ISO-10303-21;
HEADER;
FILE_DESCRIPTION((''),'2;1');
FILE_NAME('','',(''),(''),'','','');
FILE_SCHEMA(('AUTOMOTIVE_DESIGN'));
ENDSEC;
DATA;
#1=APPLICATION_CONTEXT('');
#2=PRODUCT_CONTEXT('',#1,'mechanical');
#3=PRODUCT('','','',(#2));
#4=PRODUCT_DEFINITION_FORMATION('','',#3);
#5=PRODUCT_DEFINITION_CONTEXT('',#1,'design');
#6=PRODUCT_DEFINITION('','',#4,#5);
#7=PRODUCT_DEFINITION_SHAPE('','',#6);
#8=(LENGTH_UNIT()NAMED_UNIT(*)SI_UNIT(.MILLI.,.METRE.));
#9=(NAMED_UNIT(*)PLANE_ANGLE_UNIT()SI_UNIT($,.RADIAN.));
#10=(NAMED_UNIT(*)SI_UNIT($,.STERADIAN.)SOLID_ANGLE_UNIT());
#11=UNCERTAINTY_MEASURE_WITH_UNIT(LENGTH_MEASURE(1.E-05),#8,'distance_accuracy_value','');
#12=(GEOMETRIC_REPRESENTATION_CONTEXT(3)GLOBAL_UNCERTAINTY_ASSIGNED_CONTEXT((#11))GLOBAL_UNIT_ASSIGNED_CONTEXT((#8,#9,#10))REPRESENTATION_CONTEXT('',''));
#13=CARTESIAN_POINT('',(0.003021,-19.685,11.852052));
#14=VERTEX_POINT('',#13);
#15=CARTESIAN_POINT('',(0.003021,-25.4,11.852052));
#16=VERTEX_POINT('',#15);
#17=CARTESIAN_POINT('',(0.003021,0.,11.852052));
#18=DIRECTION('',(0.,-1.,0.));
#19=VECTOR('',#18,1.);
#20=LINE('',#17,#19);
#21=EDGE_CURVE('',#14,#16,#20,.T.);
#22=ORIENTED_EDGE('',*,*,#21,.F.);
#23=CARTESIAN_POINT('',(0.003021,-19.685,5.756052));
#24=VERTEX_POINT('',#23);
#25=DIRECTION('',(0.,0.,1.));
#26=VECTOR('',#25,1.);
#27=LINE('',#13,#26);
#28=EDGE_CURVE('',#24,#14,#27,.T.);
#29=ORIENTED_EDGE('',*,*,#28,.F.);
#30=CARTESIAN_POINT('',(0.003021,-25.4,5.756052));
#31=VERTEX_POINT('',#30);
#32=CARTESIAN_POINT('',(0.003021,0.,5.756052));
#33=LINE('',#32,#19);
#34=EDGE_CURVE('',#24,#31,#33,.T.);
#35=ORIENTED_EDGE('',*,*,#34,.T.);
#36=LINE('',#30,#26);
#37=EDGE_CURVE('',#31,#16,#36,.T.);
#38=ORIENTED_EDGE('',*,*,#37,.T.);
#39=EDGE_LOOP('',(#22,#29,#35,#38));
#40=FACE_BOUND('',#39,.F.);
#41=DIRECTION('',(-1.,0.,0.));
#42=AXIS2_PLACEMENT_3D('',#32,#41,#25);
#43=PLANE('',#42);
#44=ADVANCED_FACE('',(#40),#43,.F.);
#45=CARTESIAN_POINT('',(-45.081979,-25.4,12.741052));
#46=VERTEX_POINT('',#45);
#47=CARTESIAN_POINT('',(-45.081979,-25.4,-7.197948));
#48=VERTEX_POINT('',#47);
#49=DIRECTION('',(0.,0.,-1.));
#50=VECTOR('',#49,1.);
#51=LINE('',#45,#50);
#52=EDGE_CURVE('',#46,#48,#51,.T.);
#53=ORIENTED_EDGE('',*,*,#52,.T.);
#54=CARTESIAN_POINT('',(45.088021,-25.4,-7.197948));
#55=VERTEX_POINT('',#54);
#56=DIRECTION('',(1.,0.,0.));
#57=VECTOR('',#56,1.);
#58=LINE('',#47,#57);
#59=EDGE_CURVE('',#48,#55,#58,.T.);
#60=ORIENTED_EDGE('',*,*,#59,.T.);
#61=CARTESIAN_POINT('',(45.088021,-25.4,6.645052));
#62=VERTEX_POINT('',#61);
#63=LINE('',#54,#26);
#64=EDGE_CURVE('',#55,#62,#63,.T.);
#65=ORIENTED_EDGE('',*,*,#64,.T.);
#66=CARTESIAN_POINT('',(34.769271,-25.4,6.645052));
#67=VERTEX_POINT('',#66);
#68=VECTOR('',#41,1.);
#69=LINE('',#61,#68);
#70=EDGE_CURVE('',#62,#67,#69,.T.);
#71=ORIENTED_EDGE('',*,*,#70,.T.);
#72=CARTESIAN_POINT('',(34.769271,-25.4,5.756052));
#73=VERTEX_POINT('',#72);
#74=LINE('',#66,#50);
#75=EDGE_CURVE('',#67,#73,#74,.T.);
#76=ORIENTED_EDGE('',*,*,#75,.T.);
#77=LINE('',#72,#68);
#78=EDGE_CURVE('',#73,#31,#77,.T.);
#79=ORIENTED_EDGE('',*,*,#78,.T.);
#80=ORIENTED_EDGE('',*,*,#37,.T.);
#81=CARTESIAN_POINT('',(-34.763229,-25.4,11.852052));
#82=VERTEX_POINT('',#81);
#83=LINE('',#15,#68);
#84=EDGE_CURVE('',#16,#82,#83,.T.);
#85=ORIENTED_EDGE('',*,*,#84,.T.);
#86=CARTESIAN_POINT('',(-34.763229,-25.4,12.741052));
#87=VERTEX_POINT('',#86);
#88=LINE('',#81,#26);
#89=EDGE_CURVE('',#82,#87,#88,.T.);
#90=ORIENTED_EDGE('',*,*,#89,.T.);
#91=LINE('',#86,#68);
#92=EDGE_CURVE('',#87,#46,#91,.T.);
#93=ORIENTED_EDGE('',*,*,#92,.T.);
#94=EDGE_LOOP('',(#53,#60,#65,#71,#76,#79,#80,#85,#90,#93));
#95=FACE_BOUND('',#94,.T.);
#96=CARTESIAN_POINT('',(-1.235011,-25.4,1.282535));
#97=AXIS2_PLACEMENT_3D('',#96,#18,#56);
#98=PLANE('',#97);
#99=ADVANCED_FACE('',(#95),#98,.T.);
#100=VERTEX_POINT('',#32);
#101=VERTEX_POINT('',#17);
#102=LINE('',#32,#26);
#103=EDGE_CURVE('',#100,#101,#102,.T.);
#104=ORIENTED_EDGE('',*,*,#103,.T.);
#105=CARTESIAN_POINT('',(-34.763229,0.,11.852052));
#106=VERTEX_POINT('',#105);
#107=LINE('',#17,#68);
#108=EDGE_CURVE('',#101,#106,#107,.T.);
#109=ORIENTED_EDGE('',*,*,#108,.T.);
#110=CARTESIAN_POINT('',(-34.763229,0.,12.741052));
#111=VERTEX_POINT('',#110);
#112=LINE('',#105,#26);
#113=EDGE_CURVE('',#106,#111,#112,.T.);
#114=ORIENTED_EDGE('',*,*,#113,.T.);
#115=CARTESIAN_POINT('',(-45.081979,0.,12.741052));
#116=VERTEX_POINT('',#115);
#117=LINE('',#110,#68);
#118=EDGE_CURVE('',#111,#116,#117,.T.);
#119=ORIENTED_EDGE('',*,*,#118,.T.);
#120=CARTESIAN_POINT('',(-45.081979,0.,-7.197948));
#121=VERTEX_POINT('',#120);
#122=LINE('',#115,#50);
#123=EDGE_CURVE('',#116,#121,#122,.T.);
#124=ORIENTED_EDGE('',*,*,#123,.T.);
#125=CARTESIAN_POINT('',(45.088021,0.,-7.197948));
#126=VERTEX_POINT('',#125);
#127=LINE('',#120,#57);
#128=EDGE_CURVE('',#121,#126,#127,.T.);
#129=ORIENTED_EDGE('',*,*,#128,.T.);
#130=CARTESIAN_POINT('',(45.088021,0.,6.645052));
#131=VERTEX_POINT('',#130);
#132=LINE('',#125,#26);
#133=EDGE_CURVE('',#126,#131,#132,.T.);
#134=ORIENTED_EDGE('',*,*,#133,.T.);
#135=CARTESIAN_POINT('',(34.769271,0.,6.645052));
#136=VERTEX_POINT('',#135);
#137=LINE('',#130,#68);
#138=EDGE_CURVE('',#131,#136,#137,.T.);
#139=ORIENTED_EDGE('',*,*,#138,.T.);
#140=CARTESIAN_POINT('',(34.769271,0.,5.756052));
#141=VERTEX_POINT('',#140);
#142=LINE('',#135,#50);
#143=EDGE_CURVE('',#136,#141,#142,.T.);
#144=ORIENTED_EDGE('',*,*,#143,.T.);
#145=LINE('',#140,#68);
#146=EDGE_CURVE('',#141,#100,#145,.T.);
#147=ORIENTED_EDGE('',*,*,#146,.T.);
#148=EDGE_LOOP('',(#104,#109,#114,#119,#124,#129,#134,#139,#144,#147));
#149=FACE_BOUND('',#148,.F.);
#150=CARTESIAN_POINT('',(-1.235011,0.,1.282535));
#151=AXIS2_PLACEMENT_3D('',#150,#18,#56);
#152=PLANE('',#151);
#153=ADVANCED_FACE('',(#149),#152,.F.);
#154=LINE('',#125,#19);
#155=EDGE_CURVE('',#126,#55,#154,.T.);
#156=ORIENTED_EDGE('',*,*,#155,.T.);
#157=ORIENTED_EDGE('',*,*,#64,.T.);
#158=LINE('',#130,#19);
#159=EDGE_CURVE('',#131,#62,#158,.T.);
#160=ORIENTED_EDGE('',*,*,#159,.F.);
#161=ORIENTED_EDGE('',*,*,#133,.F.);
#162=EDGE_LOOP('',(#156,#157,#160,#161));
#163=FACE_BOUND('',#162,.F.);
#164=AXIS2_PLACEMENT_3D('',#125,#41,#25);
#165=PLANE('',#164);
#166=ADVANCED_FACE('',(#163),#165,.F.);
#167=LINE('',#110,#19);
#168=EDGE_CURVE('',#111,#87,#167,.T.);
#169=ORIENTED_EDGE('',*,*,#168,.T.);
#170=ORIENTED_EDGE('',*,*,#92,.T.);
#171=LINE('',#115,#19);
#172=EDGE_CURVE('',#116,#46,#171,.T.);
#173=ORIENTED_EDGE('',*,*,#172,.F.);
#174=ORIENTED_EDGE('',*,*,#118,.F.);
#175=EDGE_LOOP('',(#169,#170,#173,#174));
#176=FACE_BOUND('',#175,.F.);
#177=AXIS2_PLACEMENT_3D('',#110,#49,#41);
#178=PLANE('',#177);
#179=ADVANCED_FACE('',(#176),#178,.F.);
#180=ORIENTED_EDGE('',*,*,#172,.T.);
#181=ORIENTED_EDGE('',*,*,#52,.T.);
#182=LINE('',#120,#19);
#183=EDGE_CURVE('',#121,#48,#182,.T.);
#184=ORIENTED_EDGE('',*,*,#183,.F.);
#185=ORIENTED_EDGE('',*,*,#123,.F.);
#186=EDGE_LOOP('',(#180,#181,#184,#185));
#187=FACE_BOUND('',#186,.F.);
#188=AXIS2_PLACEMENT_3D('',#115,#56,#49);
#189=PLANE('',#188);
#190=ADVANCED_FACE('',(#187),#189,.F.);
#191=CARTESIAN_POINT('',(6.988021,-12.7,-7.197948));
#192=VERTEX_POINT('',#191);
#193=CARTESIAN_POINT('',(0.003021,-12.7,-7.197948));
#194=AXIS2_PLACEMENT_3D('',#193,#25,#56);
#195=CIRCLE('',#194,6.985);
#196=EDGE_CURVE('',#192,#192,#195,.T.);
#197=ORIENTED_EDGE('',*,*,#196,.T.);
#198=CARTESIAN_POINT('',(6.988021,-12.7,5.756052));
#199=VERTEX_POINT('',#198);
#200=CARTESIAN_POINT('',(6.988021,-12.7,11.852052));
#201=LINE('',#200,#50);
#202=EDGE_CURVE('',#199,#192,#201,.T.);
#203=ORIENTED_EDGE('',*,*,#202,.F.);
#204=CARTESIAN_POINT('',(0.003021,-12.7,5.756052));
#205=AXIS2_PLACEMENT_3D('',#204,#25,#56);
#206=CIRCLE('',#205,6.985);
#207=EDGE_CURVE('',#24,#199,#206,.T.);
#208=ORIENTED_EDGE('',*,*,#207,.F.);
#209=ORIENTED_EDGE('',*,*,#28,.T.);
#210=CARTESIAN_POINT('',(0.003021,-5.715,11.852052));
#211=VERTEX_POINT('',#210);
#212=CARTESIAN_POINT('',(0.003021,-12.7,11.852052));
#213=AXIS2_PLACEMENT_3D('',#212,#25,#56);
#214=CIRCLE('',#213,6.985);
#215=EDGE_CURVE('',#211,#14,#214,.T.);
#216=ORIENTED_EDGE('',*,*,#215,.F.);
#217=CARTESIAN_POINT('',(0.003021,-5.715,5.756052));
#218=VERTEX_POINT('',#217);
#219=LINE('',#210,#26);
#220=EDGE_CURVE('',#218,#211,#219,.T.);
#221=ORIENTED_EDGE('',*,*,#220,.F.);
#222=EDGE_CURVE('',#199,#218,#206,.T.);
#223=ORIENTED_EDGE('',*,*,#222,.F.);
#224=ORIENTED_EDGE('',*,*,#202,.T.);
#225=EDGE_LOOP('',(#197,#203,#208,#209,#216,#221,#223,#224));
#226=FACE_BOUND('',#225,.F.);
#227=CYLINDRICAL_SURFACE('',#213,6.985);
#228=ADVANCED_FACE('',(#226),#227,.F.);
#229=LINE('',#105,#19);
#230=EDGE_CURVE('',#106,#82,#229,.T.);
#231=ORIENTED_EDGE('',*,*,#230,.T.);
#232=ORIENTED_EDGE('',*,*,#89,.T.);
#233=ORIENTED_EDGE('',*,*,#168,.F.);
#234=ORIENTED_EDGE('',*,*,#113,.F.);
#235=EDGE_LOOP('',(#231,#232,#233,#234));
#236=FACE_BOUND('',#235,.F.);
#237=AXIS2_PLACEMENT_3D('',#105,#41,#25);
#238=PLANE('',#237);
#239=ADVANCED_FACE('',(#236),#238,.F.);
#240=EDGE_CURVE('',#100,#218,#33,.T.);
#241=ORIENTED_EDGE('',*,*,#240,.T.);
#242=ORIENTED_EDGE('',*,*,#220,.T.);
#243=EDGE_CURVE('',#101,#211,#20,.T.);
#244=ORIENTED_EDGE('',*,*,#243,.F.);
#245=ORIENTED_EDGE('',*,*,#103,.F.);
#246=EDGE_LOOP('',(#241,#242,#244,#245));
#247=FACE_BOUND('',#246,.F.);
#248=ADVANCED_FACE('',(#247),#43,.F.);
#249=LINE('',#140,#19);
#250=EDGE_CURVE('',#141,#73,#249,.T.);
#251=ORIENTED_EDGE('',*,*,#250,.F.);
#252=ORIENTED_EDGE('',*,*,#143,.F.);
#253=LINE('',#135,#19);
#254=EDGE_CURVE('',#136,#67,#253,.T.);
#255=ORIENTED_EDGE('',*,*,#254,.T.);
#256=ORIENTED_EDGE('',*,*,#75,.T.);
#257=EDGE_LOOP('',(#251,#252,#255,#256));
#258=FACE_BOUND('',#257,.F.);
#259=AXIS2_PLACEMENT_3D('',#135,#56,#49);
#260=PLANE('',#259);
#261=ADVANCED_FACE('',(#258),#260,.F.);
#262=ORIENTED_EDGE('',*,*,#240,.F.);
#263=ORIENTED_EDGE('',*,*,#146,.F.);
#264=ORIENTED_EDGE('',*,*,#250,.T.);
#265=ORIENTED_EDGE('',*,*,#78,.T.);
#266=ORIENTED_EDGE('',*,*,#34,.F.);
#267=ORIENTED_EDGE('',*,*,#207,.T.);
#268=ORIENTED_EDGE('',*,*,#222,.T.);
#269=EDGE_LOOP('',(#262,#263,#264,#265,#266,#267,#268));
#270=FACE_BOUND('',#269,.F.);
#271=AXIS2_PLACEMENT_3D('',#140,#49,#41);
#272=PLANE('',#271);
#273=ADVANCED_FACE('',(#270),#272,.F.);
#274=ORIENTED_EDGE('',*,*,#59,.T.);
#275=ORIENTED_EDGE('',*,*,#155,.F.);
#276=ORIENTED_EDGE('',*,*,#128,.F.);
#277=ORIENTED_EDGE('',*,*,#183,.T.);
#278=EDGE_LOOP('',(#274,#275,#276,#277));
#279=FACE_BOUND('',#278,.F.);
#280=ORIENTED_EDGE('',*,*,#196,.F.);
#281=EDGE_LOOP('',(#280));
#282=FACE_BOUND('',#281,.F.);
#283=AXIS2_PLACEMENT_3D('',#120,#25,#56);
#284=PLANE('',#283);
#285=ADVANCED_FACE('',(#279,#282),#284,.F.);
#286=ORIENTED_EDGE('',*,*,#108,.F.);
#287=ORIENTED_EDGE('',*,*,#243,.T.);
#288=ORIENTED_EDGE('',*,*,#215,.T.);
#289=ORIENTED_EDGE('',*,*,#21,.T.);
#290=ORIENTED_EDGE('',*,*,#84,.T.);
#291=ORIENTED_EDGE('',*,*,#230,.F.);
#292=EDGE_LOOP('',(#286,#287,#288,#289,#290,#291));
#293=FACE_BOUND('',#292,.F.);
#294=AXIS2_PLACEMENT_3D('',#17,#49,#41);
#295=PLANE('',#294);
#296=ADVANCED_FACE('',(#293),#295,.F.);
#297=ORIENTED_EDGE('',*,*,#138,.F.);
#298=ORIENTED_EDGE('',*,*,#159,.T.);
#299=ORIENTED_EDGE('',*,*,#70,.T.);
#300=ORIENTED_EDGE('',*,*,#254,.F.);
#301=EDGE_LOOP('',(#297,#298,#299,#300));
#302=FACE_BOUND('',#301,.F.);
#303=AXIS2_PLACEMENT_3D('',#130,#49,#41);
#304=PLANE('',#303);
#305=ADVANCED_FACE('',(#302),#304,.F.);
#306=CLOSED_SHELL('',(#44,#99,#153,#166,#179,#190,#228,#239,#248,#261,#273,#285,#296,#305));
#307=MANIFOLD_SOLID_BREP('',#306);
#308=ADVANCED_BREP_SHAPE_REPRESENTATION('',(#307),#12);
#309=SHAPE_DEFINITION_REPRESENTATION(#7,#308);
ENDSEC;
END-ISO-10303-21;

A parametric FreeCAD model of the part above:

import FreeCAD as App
import Part
import Sketcher
Q = App.Units.Quantity

doc = App.newDocument("Part")
body = doc.addObject("PartDesign::Body", "Body")

# Sketch on XZ plane
sketch1 = doc.addObject("Sketcher::SketchObject", "Sketch")
body.addObject(sketch1)
sketch1.AttachmentSupport = (doc.XZ_Plane, [""])
sketch1.MapMode = "FlatFace"
sketch1.addGeometry(Part.LineSegment(App.Vector(-34.8, 12.7, 0), App.Vector(-45.1, 12.7, 0)), False)
sketch1.addGeometry(Part.LineSegment(App.Vector(-45.1, 12.7, 0), App.Vector(-45.1, -7.2, 0)), False)
sketch1.addGeometry(Part.LineSegment(App.Vector(-45.1, -7.2, 0), App.Vector(45.1, -7.2, 0)), False)
sketch1.addGeometry(Part.LineSegment(App.Vector(45.1, -7.2, 0), App.Vector(45.1, 6.6, 0)), False)
sketch1.addGeometry(Part.LineSegment(App.Vector(45.1, 6.6, 0), App.Vector(34.8, 6.6, 0)), False)
sketch1.addGeometry(Part.LineSegment(App.Vector(34.8, 6.6, 0), App.Vector(34.8, 5.8, 0)), False)
sketch1.addGeometry(Part.LineSegment(App.Vector(34.8, 5.8, 0), App.Vector(0, 5.8, 0)), False)
sketch1.addGeometry(Part.LineSegment(App.Vector(0, 5.8, 0), App.Vector(0, 11.9, 0)), False)
sketch1.addGeometry(Part.LineSegment(App.Vector(0, 11.9, 0), App.Vector(-34.8, 11.9, 0)), False)
sketch1.addGeometry(Part.LineSegment(App.Vector(-34.8, 11.9, 0), App.Vector(-34.8, 12.7, 0)), False)
sketch1.addConstraint(Sketcher.Constraint("Coincident", 0, 2, 1, 1))
sketch1.addConstraint(Sketcher.Constraint("Coincident", 1, 2, 2, 1))
sketch1.addConstraint(Sketcher.Constraint("Coincident", 2, 2, 3, 1))
sketch1.addConstraint(Sketcher.Constraint("Coincident", 3, 2, 4, 1))
sketch1.addConstraint(Sketcher.Constraint("Coincident", 4, 2, 5, 1))
sketch1.addConstraint(Sketcher.Constraint("Coincident", 5, 2, 6, 1))
sketch1.addConstraint(Sketcher.Constraint("Coincident", 6, 2, 7, 1))
sketch1.addConstraint(Sketcher.Constraint("Coincident", 7, 2, 8, 1))
sketch1.addConstraint(Sketcher.Constraint("Coincident", 8, 2, 9, 1))
sketch1.addConstraint(Sketcher.Constraint("Coincident", 9, 2, 0, 1))
sketch1.addConstraint(Sketcher.Constraint("Horizontal", 0))
sketch1.addConstraint(Sketcher.Constraint("Vertical", 1))
sketch1.addConstraint(Sketcher.Constraint("Horizontal", 2))
sketch1.addConstraint(Sketcher.Constraint("Vertical", 3))
sketch1.addConstraint(Sketcher.Constraint("Horizontal", 4))
sketch1.addConstraint(Sketcher.Constraint("Vertical", 5))
sketch1.addConstraint(Sketcher.Constraint("Horizontal", 6))
sketch1.addConstraint(Sketcher.Constraint("Vertical", 7))
sketch1.addConstraint(Sketcher.Constraint("Horizontal", 8))
sketch1.addConstraint(Sketcher.Constraint("Vertical", 9))
sketch1.addConstraint(Sketcher.Constraint("Equal", 0, 4))
sketch1.addConstraint(Sketcher.Constraint("Equal", 6, 8))
sketch1.addConstraint(Sketcher.Constraint("Equal", 5, 9))
sketch1.addConstraint(Sketcher.Constraint("DistanceX", 2, 1, 2, 2, Q("3.55 in")))
sketch1.addConstraint(Sketcher.Constraint("DistanceY", 7, 1, 7, 2, Q("0.24 in")))
sketch1.addConstraint(Sketcher.Constraint("DistanceX", 0, 2, 0, 1, Q("0.40625 in")))
sketch1.addConstraint(Sketcher.Constraint("DistanceY", 1, 2, 1, 1, Q("0.785 in")))
sketch1.addConstraint(Sketcher.Constraint("DistanceY", 5, 2, 5, 1, Q("0.035 in")))
sketch1.addConstraint(Sketcher.Constraint("DistanceX", 0, 2, -1, 1, 45.081979))
sketch1.addConstraint(Sketcher.Constraint("DistanceY", 1, 2, -1, 1, 7.197948))
pad1 = doc.addObject("PartDesign::Pad", "Pad")
body.addObject(pad1)
pad1.Profile = sketch1
pad1.Length = Q("1 in")

# Sketch on XY plane
sketch2 = doc.addObject("Sketcher::SketchObject", "Sketch001")
body.addObject(sketch2)
sketch2.AttachmentSupport = (doc.XY_Plane, [""])
sketch2.MapMode = "FlatFace"
sketch2.AttachmentOffset = App.Placement(App.Vector(0, 0, 11.852052), App.Rotation())
sketch2.addGeometry(Part.Circle(App.Vector(0, -13, 0), App.Vector(0, 0, 1), 7), False)
sketch2.addConstraint(Sketcher.Constraint("Diameter", 0, Q("0.55 in")))
sketch2.addConstraint(Sketcher.Constraint("DistanceY", 0, 3, -1, 1, Q("0.5 in")))
sketch2.addConstraint(Sketcher.Constraint("DistanceX", -1, 1, 0, 3, 0.003021))
pocket1 = doc.addObject("PartDesign::Pocket", "Pocket")
body.addObject(pocket1)
pocket1.Profile = sketch2
pocket1.Length = Q("1 in")

doc.recompute()
